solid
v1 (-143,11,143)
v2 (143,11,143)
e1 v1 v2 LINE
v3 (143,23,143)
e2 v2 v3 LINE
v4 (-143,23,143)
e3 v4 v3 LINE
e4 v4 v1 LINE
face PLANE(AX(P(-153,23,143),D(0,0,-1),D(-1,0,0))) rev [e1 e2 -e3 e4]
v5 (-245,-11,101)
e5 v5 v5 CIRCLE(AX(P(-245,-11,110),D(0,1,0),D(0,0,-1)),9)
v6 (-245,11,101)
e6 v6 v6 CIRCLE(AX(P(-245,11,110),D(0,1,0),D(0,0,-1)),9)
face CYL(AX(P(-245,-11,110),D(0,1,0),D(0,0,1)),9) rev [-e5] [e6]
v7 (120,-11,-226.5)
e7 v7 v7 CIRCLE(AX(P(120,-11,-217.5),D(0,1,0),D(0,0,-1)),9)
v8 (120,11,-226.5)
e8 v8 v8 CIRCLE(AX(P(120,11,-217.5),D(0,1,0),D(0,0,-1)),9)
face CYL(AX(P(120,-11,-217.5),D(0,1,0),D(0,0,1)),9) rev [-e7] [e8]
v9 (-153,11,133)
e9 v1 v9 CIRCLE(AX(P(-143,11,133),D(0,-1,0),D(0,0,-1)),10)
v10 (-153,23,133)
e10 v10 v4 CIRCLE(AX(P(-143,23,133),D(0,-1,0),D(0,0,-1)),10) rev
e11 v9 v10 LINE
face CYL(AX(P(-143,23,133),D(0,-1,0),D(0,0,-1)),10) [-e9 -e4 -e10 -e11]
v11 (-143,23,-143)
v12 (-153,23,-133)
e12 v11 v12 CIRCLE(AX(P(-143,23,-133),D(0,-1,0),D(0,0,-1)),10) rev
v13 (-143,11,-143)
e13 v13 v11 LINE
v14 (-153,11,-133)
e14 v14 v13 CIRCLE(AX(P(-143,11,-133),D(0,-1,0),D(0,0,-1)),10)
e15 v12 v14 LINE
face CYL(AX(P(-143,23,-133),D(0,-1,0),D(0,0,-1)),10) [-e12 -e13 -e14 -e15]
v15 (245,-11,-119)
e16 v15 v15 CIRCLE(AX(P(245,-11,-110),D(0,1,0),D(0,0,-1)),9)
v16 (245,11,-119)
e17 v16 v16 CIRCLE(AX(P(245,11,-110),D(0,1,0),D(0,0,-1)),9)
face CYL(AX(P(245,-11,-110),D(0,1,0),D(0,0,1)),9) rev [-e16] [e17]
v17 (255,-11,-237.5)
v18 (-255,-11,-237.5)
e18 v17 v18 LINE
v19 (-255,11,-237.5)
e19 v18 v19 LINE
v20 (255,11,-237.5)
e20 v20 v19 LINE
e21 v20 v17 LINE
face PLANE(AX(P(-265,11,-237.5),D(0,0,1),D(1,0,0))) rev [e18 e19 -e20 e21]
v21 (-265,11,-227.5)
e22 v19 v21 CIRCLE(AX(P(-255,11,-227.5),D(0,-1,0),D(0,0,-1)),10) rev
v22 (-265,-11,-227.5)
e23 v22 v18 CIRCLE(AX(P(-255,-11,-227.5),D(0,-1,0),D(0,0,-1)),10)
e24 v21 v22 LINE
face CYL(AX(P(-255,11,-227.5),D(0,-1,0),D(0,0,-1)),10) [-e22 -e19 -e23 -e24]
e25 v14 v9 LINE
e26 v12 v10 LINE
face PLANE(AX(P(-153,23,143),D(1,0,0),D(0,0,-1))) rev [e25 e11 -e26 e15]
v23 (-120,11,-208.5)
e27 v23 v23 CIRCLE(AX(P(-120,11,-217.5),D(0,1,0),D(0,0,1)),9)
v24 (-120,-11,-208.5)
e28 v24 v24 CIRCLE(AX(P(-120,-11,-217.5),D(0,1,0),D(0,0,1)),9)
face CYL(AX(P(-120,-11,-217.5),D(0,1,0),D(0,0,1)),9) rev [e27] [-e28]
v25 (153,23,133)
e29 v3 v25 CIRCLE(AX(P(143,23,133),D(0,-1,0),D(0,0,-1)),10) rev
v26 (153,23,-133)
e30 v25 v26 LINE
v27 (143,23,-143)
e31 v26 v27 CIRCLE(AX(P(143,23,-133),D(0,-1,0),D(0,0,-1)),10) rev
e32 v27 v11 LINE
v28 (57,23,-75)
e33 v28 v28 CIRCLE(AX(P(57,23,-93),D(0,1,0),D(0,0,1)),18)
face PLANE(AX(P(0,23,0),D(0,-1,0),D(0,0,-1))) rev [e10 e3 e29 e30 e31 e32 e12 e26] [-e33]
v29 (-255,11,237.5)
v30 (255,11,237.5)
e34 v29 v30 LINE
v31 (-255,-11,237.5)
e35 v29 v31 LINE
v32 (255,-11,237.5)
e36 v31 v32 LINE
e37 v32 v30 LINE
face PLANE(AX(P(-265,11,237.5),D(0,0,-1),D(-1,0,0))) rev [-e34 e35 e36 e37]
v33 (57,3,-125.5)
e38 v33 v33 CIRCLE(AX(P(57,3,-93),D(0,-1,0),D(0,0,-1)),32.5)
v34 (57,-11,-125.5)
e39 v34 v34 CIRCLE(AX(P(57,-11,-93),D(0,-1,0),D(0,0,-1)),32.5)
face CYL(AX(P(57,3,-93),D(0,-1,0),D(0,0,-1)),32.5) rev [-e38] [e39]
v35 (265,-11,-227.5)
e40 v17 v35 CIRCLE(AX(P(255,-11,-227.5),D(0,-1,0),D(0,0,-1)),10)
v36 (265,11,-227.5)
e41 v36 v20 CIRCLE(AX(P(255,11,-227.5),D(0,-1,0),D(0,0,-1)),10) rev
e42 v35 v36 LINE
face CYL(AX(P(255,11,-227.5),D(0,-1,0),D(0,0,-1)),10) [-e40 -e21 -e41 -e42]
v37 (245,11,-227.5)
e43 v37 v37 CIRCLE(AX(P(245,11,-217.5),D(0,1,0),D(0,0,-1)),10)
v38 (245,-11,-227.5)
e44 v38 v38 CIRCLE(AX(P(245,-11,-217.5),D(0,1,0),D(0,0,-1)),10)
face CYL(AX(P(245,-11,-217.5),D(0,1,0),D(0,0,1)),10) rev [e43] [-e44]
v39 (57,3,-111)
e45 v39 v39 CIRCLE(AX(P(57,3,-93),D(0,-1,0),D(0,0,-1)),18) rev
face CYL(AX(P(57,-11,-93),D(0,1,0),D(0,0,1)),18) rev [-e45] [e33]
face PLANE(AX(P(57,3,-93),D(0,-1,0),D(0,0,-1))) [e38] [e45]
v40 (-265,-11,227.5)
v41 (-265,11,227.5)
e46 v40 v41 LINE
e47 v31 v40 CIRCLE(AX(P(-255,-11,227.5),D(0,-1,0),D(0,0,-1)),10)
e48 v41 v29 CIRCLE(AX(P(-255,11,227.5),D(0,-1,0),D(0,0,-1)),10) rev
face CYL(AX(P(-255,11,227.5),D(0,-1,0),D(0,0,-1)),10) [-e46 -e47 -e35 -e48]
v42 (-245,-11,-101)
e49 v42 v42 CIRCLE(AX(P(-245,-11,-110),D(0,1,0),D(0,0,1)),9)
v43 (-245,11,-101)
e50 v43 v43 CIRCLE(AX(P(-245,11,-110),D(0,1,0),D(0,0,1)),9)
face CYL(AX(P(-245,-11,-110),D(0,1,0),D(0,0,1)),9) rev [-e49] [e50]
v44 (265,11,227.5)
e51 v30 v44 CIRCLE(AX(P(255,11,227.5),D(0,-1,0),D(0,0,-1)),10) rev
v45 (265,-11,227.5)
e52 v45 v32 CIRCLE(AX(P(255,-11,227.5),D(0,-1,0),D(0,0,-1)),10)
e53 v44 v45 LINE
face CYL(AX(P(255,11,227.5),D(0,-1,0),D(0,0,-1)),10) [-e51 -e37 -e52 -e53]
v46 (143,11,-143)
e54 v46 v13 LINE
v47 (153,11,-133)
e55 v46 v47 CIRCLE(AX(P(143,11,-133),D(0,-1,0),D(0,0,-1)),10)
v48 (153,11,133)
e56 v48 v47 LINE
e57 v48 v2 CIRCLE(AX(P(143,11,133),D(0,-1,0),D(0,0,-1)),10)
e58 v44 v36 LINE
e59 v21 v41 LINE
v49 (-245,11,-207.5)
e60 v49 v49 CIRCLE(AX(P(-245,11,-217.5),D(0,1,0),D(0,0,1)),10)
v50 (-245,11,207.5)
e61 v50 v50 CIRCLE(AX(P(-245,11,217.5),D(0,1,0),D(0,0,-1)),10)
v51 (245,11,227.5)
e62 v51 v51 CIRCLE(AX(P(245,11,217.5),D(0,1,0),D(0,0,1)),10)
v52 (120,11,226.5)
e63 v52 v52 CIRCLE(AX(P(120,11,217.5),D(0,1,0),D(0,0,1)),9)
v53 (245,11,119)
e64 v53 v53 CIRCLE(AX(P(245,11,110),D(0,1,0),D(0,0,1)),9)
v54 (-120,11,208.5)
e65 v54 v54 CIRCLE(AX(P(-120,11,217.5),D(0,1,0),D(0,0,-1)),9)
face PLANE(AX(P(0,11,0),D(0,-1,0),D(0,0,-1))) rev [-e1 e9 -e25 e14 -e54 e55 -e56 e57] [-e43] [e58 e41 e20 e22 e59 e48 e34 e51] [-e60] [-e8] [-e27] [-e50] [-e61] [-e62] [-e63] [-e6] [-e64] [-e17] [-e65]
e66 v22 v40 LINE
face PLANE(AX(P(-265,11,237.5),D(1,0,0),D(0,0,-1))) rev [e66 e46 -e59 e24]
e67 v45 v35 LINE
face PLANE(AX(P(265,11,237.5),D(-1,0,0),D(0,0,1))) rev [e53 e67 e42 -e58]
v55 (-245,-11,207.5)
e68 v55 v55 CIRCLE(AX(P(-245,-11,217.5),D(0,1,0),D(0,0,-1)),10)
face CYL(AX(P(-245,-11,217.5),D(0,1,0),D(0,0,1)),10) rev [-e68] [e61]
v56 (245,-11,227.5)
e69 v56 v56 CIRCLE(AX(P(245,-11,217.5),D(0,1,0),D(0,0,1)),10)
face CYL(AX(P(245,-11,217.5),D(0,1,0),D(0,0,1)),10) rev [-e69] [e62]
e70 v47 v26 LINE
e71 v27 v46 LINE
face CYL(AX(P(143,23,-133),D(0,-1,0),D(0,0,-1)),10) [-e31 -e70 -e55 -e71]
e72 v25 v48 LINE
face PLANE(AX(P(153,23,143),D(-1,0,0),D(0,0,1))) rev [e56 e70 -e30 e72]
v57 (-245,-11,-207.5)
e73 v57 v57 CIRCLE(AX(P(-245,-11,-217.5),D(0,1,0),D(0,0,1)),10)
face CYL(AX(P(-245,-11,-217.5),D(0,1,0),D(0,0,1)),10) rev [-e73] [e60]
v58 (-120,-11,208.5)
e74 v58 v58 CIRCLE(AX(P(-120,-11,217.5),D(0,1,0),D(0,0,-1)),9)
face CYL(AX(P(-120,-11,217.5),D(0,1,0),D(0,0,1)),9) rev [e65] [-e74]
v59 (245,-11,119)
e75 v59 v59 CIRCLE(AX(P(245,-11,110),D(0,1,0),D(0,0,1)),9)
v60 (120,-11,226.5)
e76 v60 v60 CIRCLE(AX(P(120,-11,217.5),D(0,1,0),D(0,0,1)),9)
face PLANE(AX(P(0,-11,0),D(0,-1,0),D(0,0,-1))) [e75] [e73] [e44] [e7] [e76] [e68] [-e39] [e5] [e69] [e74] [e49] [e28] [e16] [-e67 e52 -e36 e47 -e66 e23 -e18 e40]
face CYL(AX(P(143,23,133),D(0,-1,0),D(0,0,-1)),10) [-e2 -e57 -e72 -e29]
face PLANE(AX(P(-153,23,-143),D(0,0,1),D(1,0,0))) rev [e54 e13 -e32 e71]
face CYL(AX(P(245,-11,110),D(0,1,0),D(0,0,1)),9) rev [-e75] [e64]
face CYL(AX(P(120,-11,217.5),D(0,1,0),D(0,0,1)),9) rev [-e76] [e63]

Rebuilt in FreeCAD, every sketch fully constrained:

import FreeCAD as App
import Part
import Sketcher
from FreeCAD import Vector


def edges_at(feature, points):
    """Names of the edges that pass closest to the given points."""
    edges = feature.Shape.Edges
    near = lambda p: min(range(len(edges)), key=lambda i: edges[i].distToShape(Part.Vertex(*p))[0])
    return sorted({f"Edge{near(p) + 1}" for p in points})

doc = App.newDocument("Part")
params = doc.addObject("Spreadsheet::Sheet", "Params")
for row, (alias, value) in enumerate([
    ("sketch1_width", "530 mm"),
    ("sketch1_height", "475 mm"),
    ("pad1_length", "22 mm"),
    ("sketch2_width", "306 mm"),
    ("sketch2_height", "286 mm"),
    ("pad2_length", "12 mm"),
    ("sketch3_diameter", "20 mm"),
    ("sketch3_diameter2", "18 mm"),
    ("sketch4_diameter", "36 mm"),
    ("sketch5_diameter", "65 mm"),
    ("pocket3_length", "14 mm"),
    ("fillet_radius", "10 mm"),
], start=1):
    params.set(f"A{row}", alias)
    params.set(f"B{row}", "=" + value)
    params.setAlias(f"B{row}", alias)

body = doc.addObject("PartDesign::Body", "Body")

# Sketch on XZ plane
sketch1 = doc.addObject("Sketcher::SketchObject", "Sketch")
body.addObject(sketch1)
sketch1.AttachmentSupport = (doc.XZ_Plane, [""])
sketch1.MapMode = "FlatFace"
sketch1.addGeometry(Part.LineSegment(Vector(-265, -238, 0), Vector(-265, 238, 0)), False)
sketch1.addGeometry(Part.LineSegment(Vector(-265, 238, 0), Vector(265, 238, 0)), False)
sketch1.addGeometry(Part.LineSegment(Vector(265, 238, 0), Vector(265, -238, 0)), False)
sketch1.addGeometry(Part.LineSegment(Vector(265, -238, 0), Vector(-265, -238, 0)), False)
sketch1.addConstraint(Sketcher.Constraint("Coincident", 0, 2, 1, 1))
sketch1.addConstraint(Sketcher.Constraint("Coincident", 1, 2, 2, 1))
sketch1.addConstraint(Sketcher.Constraint("Coincident", 2, 2, 3, 1))
sketch1.addConstraint(Sketcher.Constraint("Coincident", 3, 2, 0, 1))
sketch1.addConstraint(Sketcher.Constraint("Vertical", 0))
sketch1.addConstraint(Sketcher.Constraint("Horizontal", 1))
sketch1.addConstraint(Sketcher.Constraint("Vertical", 2))
sketch1.addConstraint(Sketcher.Constraint("Horizontal", 3))
sketch1.addConstraint(Sketcher.Constraint("Symmetric", 0, 2, 2, 2, -1, 1))
sketch1.addConstraint(Sketcher.Constraint("DistanceX", 1, 1, 1, 2, 530.0))
sketch1.addConstraint(Sketcher.Constraint("DistanceY", 0, 1, 0, 2, 475.0))
sketch1.setExpression("Constraints[9]", "Params.sketch1_width")
sketch1.setExpression("Constraints[10]", "Params.sketch1_height")
pad1 = doc.addObject("PartDesign::Pad", "Pad")
body.addObject(pad1)
pad1.Profile = sketch1
pad1.setExpression("Length", "Params.pad1_length")
pad1.Midplane = True

# Sketch on XZ plane
sketch2 = doc.addObject("Sketcher::SketchObject", "Sketch001")
body.addObject(sketch2)
sketch2.AttachmentSupport = (doc.XZ_Plane, [""])
sketch2.MapMode = "FlatFace"
sketch2.AttachmentOffset = App.Placement(Vector(0, 0, -11), App.Rotation())
sketch2.addGeometry(Part.LineSegment(Vector(-153, -143, 0), Vector(-153, 143, 0)), False)
sketch2.addGeometry(Part.LineSegment(Vector(-153, 143, 0), Vector(153, 143, 0)), False)
sketch2.addGeometry(Part.LineSegment(Vector(153, 143, 0), Vector(153, -143, 0)), False)
sketch2.addGeometry(Part.LineSegment(Vector(153, -143, 0), Vector(-153, -143, 0)), False)
sketch2.addConstraint(Sketcher.Constraint("Coincident", 0, 2, 1, 1))
sketch2.addConstraint(Sketcher.Constraint("Coincident", 1, 2, 2, 1))
sketch2.addConstraint(Sketcher.Constraint("Coincident", 2, 2, 3, 1))
sketch2.addConstraint(Sketcher.Constraint("Coincident", 3, 2, 0, 1))
sketch2.addConstraint(Sketcher.Constraint("Vertical", 0))
sketch2.addConstraint(Sketcher.Constraint("Horizontal", 1))
sketch2.addConstraint(Sketcher.Constraint("Vertical", 2))
sketch2.addConstraint(Sketcher.Constraint("Horizontal", 3))
sketch2.addConstraint(Sketcher.Constraint("Symmetric", 0, 2, 2, 2, -1, 1))
sketch2.addConstraint(Sketcher.Constraint("DistanceX", 1, 1, 1, 2, 306.0))
sketch2.addConstraint(Sketcher.Constraint("DistanceY", 0, 1, 0, 2, 286.0))
sketch2.setExpression("Constraints[9]", "Params.sketch2_width")
sketch2.setExpression("Constraints[10]", "Params.sketch2_height")
pad2 = doc.addObject("PartDesign::Pad", "Pad001")
body.addObject(pad2)
pad2.Profile = sketch2
pad2.setExpression("Length", "Params.pad2_length")
pad2.Reversed = True

# Sketch on XZ plane
sketch3 = doc.addObject("Sketcher::SketchObject", "Sketch002")
body.addObject(sketch3)
sketch3.AttachmentSupport = (doc.XZ_Plane, [""])
sketch3.MapMode = "FlatFace"
sketch3.AttachmentOffset = App.Placement(Vector(0, 0, -11), App.Rotation())
sketch3.addGeometry(Part.Circle(Vector(-245, -218, 0), Vector(0, 0, 1), 10), False)
sketch3.addGeometry(Part.Circle(Vector(-120, -218, 0), Vector(0, 0, 1), 9), False)
sketch3.addGeometry(Part.Circle(Vector(-245, -110, 0), Vector(0, 0, 1), 9), False)
sketch3.addGeometry(Part.Circle(Vector(120, -218, 0), Vector(0, 0, 1), 9), False)
sketch3.addGeometry(Part.Circle(Vector(245, -218, 0), Vector(0, 0, 1), 10), False)
sketch3.addGeometry(Part.Circle(Vector(245, -110, 0), Vector(0, 0, 1), 9), False)
sketch3.addGeometry(Part.Circle(Vector(245, 110, 0), Vector(0, 0, 1), 9), False)
sketch3.addGeometry(Part.Circle(Vector(245, 218, 0), Vector(0, 0, 1), 10), False)
sketch3.addGeometry(Part.Circle(Vector(120, 218, 0), Vector(0, 0, 1), 9), False)
sketch3.addGeometry(Part.Circle(Vector(-120, 218, 0), Vector(0, 0, 1), 9), False)
sketch3.addGeometry(Part.Circle(Vector(-245, 110, 0), Vector(0, 0, 1), 9), False)
sketch3.addGeometry(Part.Circle(Vector(-245, 218, 0), Vector(0, 0, 1), 10), False)
sketch3.addConstraint(Sketcher.Constraint("Equal", 1, 2))
sketch3.addConstraint(Sketcher.Constraint("Equal", 2, 3))
sketch3.addConstraint(Sketcher.Constraint("Equal", 0, 4))
sketch3.addConstraint(Sketcher.Constraint("Equal", 3, 5))
sketch3.addConstraint(Sketcher.Constraint("Equal", 5, 6))
sketch3.addConstraint(Sketcher.Constraint("Equal", 4, 7))
sketch3.addConstraint(Sketcher.Constraint("Equal", 6, 8))
sketch3.addConstraint(Sketcher.Constraint("Equal", 8, 9))
sketch3.addConstraint(Sketcher.Constraint("Equal", 9, 10))
sketch3.addConstraint(Sketcher.Constraint("Equal", 7, 11))
sketch3.addConstraint(Sketcher.Constraint("Symmetric", 2, 3, 6, 3, -1, 1))
sketch3.addConstraint(Sketcher.Constraint("Symmetric", 0, 3, 7, 3, -1, 1))
sketch3.addConstraint(Sketcher.Constraint("Symmetric", 1, 3, 8, 3, -1, 1))
sketch3.addConstraint(Sketcher.Constraint("Symmetric", 3, 3, 9, 3, -1, 1))
sketch3.addConstraint(Sketcher.Constraint("Symmetric", 5, 3, 10, 3, -1, 1))
sketch3.addConstraint(Sketcher.Constraint("Symmetric", 4, 3, 11, 3, -1, 1))
sketch3.addConstraint(Sketcher.Constraint("Symmetric", 1, 3, 3, 3, -2))
sketch3.addConstraint(Sketcher.Constraint("Symmetric", 0, 3, 4, 3, -2))
sketch3.addConstraint(Sketcher.Constraint("Symmetric", 2, 3, 5, 3, -2))
sketch3.addConstraint(Sketcher.Constraint("Horizontal", 0, 3, 1, 3))
sketch3.addConstraint(Sketcher.Constraint("Vertical", 0, 3, 2, 3))
sketch3.addConstraint(Sketcher.Constraint("Diameter", 0, 20.0))
sketch3.addConstraint(Sketcher.Constraint("Diameter", 1, 18.0))
sketch3.addConstraint(Sketcher.Constraint("DistanceX", 0, 3, -1, 1, 245.0))
sketch3.addConstraint(Sketcher.Constraint("DistanceX", 1, 3, -1, 1, 120.0))
sketch3.addConstraint(Sketcher.Constraint("DistanceY", 2, 3, -1, 1, 110.0))
sketch3.addConstraint(Sketcher.Constraint("DistanceY", 4, 3, 7, 3, 435.0))
sketch3.setExpression("Constraints[21]", "Params.sketch3_diameter")
sketch3.setExpression("Constraints[22]", "Params.sketch3_diameter2")
pocket1 = doc.addObject("PartDesign::Pocket", "Pocket")
body.addObject(pocket1)
pocket1.Profile = sketch3
pocket1.Type = "ThroughAll"
pocket1.Reversed = True

# Sketch on XZ plane
sketch4 = doc.addObject("Sketcher::SketchObject", "Sketch003")
body.addObject(sketch4)
sketch4.AttachmentSupport = (doc.XZ_Plane, [""])
sketch4.MapMode = "FlatFace"
sketch4.AttachmentOffset = App.Placement(Vector(0, 0, -23), App.Rotation())
sketch4.addGeometry(Part.Circle(Vector(57, -93, 0), Vector(0, 0, 1), 18), False)
sketch4.addConstraint(Sketcher.Constraint("Diameter", 0, 36.0))
sketch4.addConstraint(Sketcher.Constraint("DistanceX", -1, 1, 0, 3, 57.0))
sketch4.addConstraint(Sketcher.Constraint("DistanceY", 0, 3, -1, 1, 93.0))
sketch4.setExpression("Constraints[0]", "Params.sketch4_diameter")
pocket2 = doc.addObject("PartDesign::Pocket", "Pocket001")
body.addObject(pocket2)
pocket2.Profile = sketch4
pocket2.Type = "ThroughAll"
pocket2.Reversed = True

# Sketch on XZ plane
sketch5 = doc.addObject("Sketcher::SketchObject", "Sketch004")
body.addObject(sketch5)
sketch5.AttachmentSupport = (doc.XZ_Plane, [""])
sketch5.MapMode = "FlatFace"
sketch5.AttachmentOffset = App.Placement(Vector(0, 0, 11), App.Rotation())
sketch5.addGeometry(Part.Circle(Vector(57, -93, 0), Vector(0, 0, 1), 32), False)
sketch5.addConstraint(Sketcher.Constraint("Diameter", 0, 65.0))
sketch5.addConstraint(Sketcher.Constraint("DistanceX", -1, 1, 0, 3, 57.0))
sketch5.addConstraint(Sketcher.Constraint("DistanceY", 0, 3, -1, 1, 93.0))
sketch5.setExpression("Constraints[0]", "Params.sketch5_diameter")
pocket3 = doc.addObject("PartDesign::Pocket", "Pocket002")
body.addObject(pocket3)
pocket3.Profile = sketch5
pocket3.setExpression("Length", "Params.pocket3_length")
doc.recompute()

fillet = doc.addObject("PartDesign::Fillet", "Fillet")
body.addObject(fillet)
fillet.Base = (pocket3, edges_at(pocket3, [
    (153, 17, 143),
    (153, 17, -143),
    (-153, 17, -143),
    (-153, 17, 143),
    (265, 0, 237.5),
    (-265, 0, 237.5),
    (-265, 0, -237.5),
    (265, 0, -237.5),
]))
fillet.setExpression("Radius", "Params.fillet_radius")

doc.recompute()
